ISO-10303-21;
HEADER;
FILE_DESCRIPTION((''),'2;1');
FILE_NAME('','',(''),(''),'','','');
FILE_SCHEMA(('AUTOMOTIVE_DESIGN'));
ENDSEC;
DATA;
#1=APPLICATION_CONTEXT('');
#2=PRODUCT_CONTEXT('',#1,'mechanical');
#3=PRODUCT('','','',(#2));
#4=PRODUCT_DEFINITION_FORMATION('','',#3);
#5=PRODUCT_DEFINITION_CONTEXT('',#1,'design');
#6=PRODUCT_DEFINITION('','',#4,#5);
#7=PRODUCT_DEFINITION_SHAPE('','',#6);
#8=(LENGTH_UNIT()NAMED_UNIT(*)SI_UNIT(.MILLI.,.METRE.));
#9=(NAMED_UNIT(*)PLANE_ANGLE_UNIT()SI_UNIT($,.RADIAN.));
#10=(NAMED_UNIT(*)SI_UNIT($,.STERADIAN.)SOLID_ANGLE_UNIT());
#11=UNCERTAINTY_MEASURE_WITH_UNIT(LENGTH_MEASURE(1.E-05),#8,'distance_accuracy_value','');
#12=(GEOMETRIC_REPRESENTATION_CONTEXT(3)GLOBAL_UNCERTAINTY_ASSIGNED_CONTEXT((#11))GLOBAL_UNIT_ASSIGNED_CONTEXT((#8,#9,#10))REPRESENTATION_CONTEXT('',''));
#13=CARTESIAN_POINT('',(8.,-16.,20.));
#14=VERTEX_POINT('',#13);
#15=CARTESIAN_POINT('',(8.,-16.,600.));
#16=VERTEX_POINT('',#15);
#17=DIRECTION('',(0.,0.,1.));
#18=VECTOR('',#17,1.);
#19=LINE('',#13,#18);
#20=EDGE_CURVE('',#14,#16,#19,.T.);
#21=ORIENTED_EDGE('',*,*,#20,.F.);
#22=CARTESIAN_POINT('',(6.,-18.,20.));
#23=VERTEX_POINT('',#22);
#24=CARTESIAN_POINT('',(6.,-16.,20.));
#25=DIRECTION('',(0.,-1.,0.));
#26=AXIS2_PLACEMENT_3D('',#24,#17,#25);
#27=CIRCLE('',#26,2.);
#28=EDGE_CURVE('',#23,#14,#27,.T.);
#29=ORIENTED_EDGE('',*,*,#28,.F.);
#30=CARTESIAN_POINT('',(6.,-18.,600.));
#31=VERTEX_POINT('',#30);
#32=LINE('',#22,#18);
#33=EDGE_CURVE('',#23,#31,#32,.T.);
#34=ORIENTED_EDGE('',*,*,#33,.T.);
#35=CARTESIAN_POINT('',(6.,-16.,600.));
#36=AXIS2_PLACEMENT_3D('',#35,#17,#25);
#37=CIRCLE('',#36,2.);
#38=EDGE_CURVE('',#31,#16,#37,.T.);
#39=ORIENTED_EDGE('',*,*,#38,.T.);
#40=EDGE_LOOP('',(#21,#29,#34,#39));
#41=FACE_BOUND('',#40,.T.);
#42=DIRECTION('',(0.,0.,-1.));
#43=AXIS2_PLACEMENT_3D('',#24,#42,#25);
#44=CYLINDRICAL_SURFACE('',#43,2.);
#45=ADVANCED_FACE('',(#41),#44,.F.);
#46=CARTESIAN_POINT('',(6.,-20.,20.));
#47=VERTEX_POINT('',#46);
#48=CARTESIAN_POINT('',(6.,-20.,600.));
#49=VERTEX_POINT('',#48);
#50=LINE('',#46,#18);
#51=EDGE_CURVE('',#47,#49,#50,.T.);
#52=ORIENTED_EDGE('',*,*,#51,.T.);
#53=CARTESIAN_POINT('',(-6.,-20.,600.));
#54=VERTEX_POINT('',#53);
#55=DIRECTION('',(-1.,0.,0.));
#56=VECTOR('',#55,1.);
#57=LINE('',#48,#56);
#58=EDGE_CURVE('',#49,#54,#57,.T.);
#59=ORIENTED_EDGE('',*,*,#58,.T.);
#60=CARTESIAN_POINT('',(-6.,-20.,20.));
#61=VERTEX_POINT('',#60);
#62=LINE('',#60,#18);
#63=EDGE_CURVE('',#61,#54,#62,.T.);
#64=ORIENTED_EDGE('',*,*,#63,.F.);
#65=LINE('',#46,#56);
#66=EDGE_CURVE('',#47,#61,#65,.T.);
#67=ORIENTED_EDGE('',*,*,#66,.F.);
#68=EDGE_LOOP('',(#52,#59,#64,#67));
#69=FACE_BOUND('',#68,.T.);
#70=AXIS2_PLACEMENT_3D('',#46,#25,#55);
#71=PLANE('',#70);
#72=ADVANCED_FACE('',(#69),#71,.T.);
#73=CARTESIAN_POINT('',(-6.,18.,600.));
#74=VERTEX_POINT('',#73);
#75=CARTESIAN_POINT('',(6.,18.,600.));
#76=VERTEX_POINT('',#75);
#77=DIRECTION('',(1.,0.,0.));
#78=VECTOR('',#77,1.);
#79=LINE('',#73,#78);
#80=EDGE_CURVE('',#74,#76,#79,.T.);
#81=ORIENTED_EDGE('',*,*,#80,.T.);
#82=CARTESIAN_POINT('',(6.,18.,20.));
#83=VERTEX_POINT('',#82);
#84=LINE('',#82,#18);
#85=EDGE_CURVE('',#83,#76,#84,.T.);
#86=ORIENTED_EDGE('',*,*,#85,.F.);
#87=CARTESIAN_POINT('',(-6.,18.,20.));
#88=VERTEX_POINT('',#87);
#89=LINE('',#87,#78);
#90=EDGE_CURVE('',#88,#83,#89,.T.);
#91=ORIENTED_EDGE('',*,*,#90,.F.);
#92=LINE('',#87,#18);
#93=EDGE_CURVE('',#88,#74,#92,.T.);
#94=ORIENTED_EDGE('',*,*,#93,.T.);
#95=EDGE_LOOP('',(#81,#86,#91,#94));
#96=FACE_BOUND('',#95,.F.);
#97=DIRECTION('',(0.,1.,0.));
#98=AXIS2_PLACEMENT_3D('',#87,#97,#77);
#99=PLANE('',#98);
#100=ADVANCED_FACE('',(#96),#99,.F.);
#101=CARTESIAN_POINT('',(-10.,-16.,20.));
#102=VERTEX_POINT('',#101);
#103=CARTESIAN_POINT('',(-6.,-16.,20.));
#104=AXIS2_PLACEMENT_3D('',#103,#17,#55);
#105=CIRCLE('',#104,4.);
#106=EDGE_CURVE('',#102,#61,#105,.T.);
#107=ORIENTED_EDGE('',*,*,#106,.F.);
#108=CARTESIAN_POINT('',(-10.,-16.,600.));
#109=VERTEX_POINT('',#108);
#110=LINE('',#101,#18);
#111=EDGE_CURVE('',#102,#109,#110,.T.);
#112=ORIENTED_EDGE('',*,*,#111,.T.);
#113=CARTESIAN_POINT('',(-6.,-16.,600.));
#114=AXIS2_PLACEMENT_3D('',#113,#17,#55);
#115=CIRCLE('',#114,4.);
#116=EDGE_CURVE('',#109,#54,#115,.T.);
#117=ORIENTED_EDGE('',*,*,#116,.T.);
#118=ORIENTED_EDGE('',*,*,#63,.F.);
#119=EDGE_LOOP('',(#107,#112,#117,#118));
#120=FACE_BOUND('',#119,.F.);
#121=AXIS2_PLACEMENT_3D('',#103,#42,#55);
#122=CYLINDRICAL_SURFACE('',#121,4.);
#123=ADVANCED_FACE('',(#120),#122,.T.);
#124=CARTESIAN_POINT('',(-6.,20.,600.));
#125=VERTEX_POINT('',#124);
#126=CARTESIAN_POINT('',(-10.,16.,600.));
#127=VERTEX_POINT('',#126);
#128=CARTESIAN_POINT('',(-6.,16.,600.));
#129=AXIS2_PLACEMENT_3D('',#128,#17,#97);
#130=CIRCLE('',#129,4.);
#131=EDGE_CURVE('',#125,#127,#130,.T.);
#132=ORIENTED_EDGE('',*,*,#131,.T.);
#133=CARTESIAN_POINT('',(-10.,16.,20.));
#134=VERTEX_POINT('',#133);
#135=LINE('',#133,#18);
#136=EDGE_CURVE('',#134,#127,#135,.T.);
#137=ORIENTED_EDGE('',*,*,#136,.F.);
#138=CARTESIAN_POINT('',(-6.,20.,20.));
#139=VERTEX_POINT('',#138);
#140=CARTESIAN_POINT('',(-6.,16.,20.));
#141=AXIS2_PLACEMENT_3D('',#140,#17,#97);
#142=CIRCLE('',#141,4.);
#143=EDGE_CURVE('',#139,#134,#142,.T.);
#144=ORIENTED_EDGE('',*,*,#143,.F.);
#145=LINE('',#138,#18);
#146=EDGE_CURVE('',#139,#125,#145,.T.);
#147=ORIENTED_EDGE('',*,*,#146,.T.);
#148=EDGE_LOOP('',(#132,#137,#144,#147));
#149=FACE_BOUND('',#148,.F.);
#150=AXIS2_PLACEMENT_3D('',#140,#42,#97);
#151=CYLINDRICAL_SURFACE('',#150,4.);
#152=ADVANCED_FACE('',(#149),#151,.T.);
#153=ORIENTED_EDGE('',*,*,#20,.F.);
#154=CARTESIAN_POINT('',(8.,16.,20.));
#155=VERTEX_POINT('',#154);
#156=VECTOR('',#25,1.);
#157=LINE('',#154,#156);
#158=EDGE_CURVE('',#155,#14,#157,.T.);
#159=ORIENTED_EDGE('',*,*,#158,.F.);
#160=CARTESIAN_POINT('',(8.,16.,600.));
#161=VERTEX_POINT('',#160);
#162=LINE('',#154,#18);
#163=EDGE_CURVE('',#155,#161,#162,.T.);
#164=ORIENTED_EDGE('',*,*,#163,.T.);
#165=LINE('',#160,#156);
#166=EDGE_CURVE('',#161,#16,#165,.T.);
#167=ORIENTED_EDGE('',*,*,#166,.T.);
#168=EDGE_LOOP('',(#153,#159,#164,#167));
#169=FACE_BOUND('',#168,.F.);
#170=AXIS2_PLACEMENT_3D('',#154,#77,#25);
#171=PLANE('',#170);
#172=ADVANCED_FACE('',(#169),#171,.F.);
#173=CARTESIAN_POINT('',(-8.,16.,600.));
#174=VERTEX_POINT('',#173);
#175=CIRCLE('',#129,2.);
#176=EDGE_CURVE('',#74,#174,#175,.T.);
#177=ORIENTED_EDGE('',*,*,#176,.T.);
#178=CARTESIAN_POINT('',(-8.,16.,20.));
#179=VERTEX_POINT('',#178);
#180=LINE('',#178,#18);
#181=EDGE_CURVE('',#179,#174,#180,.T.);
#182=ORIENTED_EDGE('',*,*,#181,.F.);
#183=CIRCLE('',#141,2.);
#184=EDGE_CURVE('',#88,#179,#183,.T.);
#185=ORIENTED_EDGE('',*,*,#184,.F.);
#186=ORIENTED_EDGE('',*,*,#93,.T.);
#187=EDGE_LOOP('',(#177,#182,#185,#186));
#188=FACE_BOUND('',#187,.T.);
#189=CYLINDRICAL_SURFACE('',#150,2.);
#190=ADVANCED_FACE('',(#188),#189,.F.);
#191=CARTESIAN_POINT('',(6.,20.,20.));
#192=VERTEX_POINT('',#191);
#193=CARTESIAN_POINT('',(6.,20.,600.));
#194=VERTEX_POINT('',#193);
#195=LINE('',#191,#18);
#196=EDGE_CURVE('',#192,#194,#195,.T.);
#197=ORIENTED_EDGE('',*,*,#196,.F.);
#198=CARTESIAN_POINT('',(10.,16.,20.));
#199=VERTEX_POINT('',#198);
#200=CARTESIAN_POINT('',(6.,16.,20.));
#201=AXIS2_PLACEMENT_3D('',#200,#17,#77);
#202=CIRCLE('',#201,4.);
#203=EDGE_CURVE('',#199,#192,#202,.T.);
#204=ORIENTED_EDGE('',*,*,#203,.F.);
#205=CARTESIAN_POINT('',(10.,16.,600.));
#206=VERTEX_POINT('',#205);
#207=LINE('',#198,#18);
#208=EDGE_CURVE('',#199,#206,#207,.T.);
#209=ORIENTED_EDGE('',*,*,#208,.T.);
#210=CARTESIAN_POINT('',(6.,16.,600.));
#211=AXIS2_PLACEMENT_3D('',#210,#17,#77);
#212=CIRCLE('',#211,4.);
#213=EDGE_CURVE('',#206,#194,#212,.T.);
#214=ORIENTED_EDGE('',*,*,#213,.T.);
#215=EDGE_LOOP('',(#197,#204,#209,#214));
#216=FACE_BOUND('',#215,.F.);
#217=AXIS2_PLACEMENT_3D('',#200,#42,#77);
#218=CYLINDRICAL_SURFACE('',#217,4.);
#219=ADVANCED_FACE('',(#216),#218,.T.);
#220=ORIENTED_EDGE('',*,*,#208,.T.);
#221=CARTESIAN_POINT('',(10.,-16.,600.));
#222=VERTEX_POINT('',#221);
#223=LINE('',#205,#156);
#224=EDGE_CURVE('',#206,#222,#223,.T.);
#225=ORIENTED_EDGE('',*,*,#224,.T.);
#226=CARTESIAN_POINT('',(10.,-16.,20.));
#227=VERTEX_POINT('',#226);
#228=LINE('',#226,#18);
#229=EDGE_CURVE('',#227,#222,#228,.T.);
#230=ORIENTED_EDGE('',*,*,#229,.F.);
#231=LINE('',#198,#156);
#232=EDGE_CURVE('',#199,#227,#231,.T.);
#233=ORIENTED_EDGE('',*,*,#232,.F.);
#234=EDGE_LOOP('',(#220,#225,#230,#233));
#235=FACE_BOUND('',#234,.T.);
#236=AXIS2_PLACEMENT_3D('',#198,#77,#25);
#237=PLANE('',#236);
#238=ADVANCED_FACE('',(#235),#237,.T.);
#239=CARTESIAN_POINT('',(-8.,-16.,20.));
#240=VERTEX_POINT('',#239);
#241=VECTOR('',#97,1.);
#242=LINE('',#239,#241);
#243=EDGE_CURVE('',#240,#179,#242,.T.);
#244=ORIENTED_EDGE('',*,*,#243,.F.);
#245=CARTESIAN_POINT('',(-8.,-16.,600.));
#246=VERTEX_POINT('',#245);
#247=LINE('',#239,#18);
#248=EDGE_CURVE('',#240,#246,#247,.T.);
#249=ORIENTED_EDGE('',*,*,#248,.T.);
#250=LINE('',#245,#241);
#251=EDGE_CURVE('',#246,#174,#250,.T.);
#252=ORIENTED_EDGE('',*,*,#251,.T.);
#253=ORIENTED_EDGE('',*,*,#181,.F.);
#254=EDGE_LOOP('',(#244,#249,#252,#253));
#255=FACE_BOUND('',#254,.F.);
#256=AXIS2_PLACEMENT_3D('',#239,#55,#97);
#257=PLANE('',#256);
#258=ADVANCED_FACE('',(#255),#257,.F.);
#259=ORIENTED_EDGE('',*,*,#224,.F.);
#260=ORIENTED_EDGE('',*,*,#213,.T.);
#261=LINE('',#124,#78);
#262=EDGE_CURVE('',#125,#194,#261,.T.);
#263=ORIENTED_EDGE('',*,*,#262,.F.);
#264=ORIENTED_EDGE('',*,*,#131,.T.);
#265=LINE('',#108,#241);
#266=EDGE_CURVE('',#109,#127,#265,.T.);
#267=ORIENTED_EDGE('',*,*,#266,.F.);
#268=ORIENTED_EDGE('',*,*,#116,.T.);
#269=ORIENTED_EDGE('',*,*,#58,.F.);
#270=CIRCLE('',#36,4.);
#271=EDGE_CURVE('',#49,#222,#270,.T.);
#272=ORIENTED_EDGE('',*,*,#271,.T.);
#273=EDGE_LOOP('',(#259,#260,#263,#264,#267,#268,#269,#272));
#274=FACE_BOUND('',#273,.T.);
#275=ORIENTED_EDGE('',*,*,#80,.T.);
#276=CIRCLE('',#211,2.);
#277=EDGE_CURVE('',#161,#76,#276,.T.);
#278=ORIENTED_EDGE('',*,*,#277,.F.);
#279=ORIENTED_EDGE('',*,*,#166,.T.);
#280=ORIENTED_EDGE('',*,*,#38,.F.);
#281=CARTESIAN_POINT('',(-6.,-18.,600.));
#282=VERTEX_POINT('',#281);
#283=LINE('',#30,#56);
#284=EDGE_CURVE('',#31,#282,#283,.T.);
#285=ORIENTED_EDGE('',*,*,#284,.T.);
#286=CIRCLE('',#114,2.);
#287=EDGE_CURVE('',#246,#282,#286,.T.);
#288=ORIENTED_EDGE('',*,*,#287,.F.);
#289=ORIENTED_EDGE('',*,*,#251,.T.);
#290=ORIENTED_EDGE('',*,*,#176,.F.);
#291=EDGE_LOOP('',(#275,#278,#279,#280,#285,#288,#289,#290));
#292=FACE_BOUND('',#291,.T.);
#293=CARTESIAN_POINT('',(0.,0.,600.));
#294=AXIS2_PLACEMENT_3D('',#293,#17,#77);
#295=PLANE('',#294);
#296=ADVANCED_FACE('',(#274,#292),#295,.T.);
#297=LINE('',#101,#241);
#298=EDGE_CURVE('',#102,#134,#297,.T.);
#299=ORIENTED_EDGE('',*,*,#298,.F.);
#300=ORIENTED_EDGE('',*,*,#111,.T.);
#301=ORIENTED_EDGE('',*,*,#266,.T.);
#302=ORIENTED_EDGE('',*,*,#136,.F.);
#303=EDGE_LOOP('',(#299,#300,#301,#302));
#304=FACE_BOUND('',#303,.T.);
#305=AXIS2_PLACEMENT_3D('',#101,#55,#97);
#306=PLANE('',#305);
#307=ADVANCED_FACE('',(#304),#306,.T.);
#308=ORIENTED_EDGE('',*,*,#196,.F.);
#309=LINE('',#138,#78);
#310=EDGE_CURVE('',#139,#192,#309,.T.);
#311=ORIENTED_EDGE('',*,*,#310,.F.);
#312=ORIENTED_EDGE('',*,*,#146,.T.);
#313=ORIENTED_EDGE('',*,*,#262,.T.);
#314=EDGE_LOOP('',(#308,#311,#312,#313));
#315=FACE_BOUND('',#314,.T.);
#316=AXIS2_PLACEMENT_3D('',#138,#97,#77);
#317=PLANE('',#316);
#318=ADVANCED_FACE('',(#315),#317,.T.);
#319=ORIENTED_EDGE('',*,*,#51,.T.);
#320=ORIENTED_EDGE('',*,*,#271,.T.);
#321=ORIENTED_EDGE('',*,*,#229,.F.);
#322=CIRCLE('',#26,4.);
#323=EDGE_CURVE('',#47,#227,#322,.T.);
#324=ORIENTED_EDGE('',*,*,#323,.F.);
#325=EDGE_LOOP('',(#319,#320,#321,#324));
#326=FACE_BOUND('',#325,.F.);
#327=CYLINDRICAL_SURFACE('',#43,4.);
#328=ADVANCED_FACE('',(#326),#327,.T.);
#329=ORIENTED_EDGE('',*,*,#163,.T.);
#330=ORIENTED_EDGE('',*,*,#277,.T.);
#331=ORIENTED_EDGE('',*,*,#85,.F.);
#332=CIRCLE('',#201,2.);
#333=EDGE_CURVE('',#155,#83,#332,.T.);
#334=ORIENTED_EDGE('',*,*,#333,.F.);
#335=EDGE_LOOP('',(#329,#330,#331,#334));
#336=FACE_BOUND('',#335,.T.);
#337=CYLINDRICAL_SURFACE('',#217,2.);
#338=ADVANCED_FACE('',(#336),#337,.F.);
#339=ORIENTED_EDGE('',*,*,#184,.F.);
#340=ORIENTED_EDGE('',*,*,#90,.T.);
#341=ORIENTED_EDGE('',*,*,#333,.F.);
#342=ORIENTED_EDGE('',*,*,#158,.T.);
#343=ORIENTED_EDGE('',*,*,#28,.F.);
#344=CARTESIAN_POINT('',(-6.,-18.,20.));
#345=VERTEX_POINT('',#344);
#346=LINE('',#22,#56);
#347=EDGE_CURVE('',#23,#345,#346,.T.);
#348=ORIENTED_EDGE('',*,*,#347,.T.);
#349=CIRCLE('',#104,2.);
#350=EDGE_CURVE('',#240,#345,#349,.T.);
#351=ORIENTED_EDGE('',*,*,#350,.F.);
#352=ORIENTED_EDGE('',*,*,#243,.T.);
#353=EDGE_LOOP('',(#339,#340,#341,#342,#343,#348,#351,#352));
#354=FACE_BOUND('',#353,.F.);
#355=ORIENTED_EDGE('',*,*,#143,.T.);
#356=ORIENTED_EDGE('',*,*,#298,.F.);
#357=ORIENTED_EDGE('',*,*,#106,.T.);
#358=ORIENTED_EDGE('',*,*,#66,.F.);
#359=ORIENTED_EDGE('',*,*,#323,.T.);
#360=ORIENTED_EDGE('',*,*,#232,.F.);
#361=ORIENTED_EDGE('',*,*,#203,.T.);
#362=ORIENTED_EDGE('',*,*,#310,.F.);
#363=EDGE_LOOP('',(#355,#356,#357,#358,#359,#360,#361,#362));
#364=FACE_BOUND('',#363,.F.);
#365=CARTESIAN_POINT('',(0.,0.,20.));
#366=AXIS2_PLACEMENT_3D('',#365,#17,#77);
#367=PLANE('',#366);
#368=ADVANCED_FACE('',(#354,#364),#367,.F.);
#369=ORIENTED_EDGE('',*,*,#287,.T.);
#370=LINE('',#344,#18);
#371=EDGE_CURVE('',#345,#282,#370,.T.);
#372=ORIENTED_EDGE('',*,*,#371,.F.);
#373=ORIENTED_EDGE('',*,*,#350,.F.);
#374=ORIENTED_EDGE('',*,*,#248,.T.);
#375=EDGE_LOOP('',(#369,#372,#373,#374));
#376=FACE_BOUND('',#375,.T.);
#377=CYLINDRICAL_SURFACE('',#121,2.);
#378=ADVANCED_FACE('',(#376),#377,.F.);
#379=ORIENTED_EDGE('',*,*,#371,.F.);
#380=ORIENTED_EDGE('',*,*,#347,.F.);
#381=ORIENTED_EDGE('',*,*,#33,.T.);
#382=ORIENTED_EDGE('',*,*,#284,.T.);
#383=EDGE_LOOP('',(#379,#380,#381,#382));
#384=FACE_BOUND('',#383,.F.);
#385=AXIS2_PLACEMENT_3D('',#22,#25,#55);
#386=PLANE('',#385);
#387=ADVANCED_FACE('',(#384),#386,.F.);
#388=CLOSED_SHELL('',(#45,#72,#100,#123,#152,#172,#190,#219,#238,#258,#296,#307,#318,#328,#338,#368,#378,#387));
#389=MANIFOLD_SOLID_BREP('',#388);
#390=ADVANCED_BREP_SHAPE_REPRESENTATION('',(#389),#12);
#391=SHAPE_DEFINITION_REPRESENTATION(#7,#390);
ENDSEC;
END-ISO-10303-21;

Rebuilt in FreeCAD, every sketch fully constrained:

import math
import FreeCAD as App
import Part
import Sketcher

V = App.Vector
Q = App.Units.Quantity

doc = App.newDocument("Part")
params = doc.addObject("Spreadsheet::Sheet", "Params")
for row, (alias, value) in enumerate([
    ("sketch1_radius", "4 mm"),
    ("sketch1_radius2", "2 mm"),
    ("pad1_length", "580 mm"),
], start=1):
    params.set(f"A{row}", alias)
    params.set(f"B{row}", "=" + value)
    params.setAlias(f"B{row}", alias)

body = doc.addObject("PartDesign::Body", "Body")

sketch1 = body.newObject("Sketcher::SketchObject", "Sketch")
sketch1.AttachmentSupport = (doc.getObject("XY_Plane"), [""])
sketch1.MapMode = "FlatFace"
sketch1.AttachmentOffset = App.Placement(V(0, 0, 20), App.Rotation())
sketch1.addGeometry(Part.LineSegment(V(-10, 16, 0), V(-10, -16, 0)), False)
sketch1.addGeometry(Part.ArcOfCircle(Part.Circle(V(-6, -16, 0), V(0, 0, 1), 4), math.radians(180), math.radians(270)), False)
sketch1.addGeometry(Part.LineSegment(V(-6, -20, 0), V(6, -20, 0)), False)
sketch1.addGeometry(Part.ArcOfCircle(Part.Circle(V(6, -16, 0), V(0, 0, 1), 4), math.radians(-90), math.radians(0)), False)
sketch1.addGeometry(Part.LineSegment(V(10, -16, 0), V(10, 16, 0)), False)
sketch1.addGeometry(Part.ArcOfCircle(Part.Circle(V(6, 16, 0), V(0, 0, 1), 4), math.radians(0), math.radians(90)), False)
sketch1.addGeometry(Part.LineSegment(V(6, 20, 0), V(-6, 20, 0)), False)
sketch1.addGeometry(Part.ArcOfCircle(Part.Circle(V(-6, 16, 0), V(0, 0, 1), 4), math.radians(90), math.radians(180)), False)
sketch1.addGeometry(Part.ArcOfCircle(Part.Circle(V(-6, 16, 0), V(0, 0, 1), 2), math.radians(90), math.radians(180)), False)
sketch1.addGeometry(Part.LineSegment(V(-6, 18, 0), V(6, 18, 0)), False)
sketch1.addGeometry(Part.ArcOfCircle(Part.Circle(V(6, 16, 0), V(0, 0, 1), 2), math.radians(0), math.radians(90)), False)
sketch1.addGeometry(Part.LineSegment(V(8, 16, 0), V(8, -16, 0)), False)
sketch1.addGeometry(Part.ArcOfCircle(Part.Circle(V(6, -16, 0), V(0, 0, 1), 2), math.radians(-90), math.radians(0)), False)
sketch1.addGeometry(Part.LineSegment(V(6, -18, 0), V(-6, -18, 0)), False)
sketch1.addGeometry(Part.ArcOfCircle(Part.Circle(V(-6, -16, 0), V(0, 0, 1), 2), math.radians(180), math.radians(270)), False)
sketch1.addGeometry(Part.LineSegment(V(-8, -16, 0), V(-8, 16, 0)), False)
sketch1.addConstraint(Sketcher.Constraint("Tangent", 0, 2, 1, 1))
sketch1.addConstraint(Sketcher.Constraint("Tangent", 1, 2, 2, 1))
sketch1.addConstraint(Sketcher.Constraint("Tangent", 2, 2, 3, 1))
sketch1.addConstraint(Sketcher.Constraint("Tangent", 3, 2, 4, 1))
sketch1.addConstraint(Sketcher.Constraint("Tangent", 4, 2, 5, 1))
sketch1.addConstraint(Sketcher.Constraint("Tangent", 5, 2, 6, 1))
sketch1.addConstraint(Sketcher.Constraint("Tangent", 6, 2, 7, 1))
sketch1.addConstraint(Sketcher.Constraint("Tangent", 7, 2, 0, 1))
sketch1.addConstraint(Sketcher.Constraint("Tangent", 8, 1, 9, 1))
sketch1.addConstraint(Sketcher.Constraint("Tangent", 9, 2, 10, 2))
sketch1.addConstraint(Sketcher.Constraint("Tangent", 10, 1, 11, 1))
sketch1.addConstraint(Sketcher.Constraint("Tangent", 11, 2, 12, 2))
sketch1.addConstraint(Sketcher.Constraint("Tangent", 12, 1, 13, 1))
sketch1.addConstraint(Sketcher.Constraint("Tangent", 13, 2, 14, 2))
sketch1.addConstraint(Sketcher.Constraint("Tangent", 14, 1, 15, 1))
sketch1.addConstraint(Sketcher.Constraint("Tangent", 15, 2, 8, 2))
sketch1.addConstraint(Sketcher.Constraint("Vertical", 0))
sketch1.addConstraint(Sketcher.Constraint("Horizontal", 2))
sketch1.addConstraint(Sketcher.Constraint("Vertical", 4))
sketch1.addConstraint(Sketcher.Constraint("Horizontal", 6))
sketch1.addConstraint(Sketcher.Constraint("Horizontal", 9))
sketch1.addConstraint(Sketcher.Constraint("Vertical", 11))
sketch1.addConstraint(Sketcher.Constraint("Horizontal", 13))
sketch1.addConstraint(Sketcher.Constraint("Vertical", 15))
sketch1.addConstraint(Sketcher.Constraint("Coincident", 8, 3, 7, 3))
sketch1.addConstraint(Sketcher.Constraint("Coincident", 10, 3, 5, 3))
sketch1.addConstraint(Sketcher.Constraint("Coincident", 12, 3, 3, 3))
sketch1.addConstraint(Sketcher.Constraint("Equal", 1, 3))
sketch1.addConstraint(Sketcher.Constraint("Equal", 3, 5))
sketch1.addConstraint(Sketcher.Constraint("Equal", 5, 7))
sketch1.addConstraint(Sketcher.Constraint("Equal", 12, 14))
sketch1.addConstraint(Sketcher.Constraint("Symmetric", 1, 3, 5, 3, -1, 1))
sketch1.addConstraint(Sketcher.Constraint("Radius", 1, Q("4 mm")))
sketch1.addConstraint(Sketcher.Constraint("Radius", 8, Q("2 mm")))
sketch1.addConstraint(Sketcher.Constraint("DistanceX", 0, 2, -1, 1, Q("10 mm")))
sketch1.addConstraint(Sketcher.Constraint("DistanceY", 1, 2, -1, 1, Q("20 mm")))
sketch1.setExpression("Constraints[32]", "Params.sketch1_radius")
sketch1.setExpression("Constraints[33]", "Params.sketch1_radius2")
pad1 = body.newObject("PartDesign::Pad", "Pad")
pad1.Profile = sketch1
pad1.setExpression("Length", "Params.pad1_length")

doc.recompute()
